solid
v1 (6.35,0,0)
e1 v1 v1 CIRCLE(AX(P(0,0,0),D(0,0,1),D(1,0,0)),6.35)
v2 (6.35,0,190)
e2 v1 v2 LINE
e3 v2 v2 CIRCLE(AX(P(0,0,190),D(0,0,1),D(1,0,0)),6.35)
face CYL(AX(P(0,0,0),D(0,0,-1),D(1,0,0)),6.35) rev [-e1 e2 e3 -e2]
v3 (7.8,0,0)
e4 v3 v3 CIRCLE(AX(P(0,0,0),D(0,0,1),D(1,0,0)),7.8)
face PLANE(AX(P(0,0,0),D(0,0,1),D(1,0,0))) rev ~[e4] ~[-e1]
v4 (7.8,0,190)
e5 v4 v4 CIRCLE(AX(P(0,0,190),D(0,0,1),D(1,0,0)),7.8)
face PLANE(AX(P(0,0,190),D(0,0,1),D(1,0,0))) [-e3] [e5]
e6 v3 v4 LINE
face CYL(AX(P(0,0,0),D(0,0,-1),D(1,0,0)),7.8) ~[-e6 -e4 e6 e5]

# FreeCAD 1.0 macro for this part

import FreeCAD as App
import Part
import Sketcher
from FreeCAD import Vector

doc = App.newDocument("Part")
params = doc.addObject("Spreadsheet::Sheet", "Params")
for row, (alias, value) in enumerate([
    ("sketch1_diameter", "15.6 mm"),
    ("sketch1_diameter2", "12.7 mm"),
    ("pad1_length", "190 mm"),
], start=1):
    params.set(f"A{row}", alias)
    params.set(f"B{row}", "=" + value)
    params.setAlias(f"B{row}", alias)

body = doc.addObject("PartDesign::Body", "Body")

sketch1 = body.newObject("Sketcher::SketchObject", "Sketch")
sketch1.AttachmentSupport = (doc.getObject("XY_Plane"), [""])
sketch1.MapMode = "FlatFace"
sketch1.addGeometry([
    Part.Circle(Vector(0, 0, 0), Vector(0, 0, 1), 8),
    Part.Circle(Vector(0, 0, 0), Vector(0, 0, 1), 6),
], False)
sketch1.addConstraint([
    Sketcher.Constraint("Coincident", 0, 3, -1, 1),
    Sketcher.Constraint("Coincident", 1, 3, -1, 1),
    Sketcher.Constraint("Diameter", 0, 15.6),
    Sketcher.Constraint("Diameter", 1, 12.7),
])
sketch1.setExpression("Constraints[2]", "Params.sketch1_diameter")
sketch1.setExpression("Constraints[3]", "Params.sketch1_diameter2")
pad1 = body.newObject("PartDesign::Pad", "Pad")
pad1.Profile = sketch1
pad1.setExpression("Length", "Params.pad1_length")

doc.recompute()
